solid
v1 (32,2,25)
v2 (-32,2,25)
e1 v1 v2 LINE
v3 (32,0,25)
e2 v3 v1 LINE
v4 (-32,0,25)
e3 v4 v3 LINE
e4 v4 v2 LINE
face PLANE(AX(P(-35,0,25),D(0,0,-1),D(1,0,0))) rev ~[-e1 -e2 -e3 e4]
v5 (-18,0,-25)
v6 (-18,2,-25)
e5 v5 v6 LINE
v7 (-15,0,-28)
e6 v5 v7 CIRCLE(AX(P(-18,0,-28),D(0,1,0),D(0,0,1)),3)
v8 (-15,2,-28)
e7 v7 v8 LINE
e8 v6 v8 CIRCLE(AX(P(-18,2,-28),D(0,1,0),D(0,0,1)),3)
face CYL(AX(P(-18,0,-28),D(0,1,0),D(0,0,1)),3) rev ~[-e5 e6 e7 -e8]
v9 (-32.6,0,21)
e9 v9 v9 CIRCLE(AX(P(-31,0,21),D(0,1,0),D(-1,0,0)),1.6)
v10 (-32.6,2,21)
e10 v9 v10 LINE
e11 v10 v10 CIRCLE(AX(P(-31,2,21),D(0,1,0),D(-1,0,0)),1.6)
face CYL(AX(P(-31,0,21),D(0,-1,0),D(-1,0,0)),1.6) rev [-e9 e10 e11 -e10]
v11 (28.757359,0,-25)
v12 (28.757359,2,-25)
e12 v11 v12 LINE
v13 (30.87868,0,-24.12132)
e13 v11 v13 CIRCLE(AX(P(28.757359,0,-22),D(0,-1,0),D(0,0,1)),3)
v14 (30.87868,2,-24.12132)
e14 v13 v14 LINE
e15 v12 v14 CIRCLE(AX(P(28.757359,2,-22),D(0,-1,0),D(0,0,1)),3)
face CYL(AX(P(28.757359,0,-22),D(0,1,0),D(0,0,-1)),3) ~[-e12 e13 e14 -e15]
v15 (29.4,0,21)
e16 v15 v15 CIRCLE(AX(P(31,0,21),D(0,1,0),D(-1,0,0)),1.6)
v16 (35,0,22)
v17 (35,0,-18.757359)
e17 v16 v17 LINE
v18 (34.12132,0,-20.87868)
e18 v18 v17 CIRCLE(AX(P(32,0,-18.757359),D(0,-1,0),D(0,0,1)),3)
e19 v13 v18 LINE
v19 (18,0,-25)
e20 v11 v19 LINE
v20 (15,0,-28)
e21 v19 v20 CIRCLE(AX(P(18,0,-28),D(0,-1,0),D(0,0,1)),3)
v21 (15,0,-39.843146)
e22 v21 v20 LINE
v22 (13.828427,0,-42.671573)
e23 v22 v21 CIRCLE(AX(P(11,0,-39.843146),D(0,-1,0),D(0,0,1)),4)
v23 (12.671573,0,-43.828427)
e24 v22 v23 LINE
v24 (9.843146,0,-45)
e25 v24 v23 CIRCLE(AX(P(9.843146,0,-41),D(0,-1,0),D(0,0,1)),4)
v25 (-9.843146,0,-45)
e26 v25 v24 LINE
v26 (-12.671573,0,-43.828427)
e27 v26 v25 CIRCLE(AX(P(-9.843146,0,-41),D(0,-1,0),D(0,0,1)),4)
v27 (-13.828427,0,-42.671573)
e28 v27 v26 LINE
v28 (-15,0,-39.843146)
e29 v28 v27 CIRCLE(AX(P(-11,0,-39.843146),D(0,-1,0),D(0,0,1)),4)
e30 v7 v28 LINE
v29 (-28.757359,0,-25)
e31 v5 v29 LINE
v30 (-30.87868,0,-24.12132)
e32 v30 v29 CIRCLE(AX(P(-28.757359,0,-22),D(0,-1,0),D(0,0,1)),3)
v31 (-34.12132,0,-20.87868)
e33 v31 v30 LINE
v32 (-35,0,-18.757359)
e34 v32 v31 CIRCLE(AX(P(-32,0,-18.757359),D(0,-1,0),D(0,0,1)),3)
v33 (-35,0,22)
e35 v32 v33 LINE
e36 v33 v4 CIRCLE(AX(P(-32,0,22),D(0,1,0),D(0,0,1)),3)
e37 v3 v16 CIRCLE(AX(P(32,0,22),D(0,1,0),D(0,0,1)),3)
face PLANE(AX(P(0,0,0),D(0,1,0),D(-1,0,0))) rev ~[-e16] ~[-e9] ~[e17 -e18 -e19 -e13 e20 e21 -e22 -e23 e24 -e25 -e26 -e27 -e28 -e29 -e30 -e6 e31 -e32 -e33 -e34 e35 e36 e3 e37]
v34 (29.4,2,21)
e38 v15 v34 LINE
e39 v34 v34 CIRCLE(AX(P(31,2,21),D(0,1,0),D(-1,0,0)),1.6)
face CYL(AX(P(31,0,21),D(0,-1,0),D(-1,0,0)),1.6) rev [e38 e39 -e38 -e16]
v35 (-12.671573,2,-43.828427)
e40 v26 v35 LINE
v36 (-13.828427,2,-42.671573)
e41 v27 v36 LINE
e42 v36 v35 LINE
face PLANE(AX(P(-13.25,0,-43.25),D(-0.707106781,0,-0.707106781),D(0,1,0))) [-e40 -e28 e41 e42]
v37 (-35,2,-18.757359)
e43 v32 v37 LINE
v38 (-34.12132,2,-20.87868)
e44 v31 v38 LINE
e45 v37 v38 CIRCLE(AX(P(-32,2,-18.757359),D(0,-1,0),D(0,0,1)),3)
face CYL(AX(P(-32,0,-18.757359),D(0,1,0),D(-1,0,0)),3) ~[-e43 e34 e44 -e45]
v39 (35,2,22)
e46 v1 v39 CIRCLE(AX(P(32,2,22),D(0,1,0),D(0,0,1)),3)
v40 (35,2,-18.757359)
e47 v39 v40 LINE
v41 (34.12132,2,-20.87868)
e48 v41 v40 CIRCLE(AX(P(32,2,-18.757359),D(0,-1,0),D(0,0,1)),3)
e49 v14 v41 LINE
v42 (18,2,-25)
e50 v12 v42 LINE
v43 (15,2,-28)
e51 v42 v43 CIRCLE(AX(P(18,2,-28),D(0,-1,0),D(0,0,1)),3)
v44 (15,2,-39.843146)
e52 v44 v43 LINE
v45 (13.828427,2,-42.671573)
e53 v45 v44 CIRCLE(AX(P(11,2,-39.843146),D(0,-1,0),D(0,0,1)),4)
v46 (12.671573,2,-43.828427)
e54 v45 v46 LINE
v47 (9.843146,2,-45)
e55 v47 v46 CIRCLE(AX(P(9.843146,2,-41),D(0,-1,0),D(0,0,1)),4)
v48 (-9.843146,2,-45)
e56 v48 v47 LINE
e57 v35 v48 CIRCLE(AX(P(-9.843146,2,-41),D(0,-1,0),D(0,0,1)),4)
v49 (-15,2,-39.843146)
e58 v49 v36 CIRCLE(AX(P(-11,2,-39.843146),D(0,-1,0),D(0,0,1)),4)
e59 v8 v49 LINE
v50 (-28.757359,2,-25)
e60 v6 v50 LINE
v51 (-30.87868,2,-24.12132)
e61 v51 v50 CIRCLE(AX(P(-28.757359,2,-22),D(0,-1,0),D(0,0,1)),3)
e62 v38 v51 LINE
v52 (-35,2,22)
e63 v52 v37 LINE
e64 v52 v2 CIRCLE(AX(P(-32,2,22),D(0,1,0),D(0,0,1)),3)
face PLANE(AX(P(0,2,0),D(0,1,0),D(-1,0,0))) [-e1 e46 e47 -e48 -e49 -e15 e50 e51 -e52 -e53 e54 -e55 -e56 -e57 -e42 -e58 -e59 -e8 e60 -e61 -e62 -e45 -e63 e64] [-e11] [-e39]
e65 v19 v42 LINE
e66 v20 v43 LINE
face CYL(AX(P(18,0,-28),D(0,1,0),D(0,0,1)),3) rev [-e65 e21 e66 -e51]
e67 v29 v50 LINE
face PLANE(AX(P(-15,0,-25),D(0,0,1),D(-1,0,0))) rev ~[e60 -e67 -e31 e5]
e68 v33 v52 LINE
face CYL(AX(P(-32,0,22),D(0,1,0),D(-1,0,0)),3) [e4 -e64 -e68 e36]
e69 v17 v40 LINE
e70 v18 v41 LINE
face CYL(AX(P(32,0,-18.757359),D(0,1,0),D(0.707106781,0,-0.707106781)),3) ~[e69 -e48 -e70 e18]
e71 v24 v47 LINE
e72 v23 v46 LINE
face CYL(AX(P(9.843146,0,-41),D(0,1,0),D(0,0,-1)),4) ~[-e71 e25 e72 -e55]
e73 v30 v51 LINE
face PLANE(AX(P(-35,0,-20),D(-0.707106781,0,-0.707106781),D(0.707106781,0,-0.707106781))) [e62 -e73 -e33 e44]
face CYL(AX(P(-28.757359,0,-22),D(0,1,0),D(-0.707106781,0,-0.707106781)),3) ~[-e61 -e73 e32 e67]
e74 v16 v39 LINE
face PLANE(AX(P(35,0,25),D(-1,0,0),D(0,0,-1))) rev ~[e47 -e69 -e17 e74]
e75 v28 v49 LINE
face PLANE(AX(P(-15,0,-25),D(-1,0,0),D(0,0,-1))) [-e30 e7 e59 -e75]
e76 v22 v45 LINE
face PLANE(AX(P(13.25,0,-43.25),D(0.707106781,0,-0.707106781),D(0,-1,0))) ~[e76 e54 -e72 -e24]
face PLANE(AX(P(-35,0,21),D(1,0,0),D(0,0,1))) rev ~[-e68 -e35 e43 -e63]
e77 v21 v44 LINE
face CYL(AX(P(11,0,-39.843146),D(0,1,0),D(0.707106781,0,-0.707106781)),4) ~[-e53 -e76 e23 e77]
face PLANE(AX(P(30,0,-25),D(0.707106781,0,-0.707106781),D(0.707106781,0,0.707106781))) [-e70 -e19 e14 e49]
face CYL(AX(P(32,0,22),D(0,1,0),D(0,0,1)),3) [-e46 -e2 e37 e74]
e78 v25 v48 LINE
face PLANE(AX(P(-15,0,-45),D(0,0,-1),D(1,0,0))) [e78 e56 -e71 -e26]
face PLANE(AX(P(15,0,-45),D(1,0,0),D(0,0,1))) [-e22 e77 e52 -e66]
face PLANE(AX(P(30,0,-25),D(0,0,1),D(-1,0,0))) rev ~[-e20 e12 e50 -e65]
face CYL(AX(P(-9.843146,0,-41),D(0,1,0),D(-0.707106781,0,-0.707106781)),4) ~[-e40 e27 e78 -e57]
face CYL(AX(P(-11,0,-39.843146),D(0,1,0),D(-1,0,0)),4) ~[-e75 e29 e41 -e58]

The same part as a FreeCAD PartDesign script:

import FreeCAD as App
import Part
import Sketcher
Q = App.Units.Quantity


def edges_at(feature, points):
    """Names of the edges that pass closest to the given points."""
    edges = feature.Shape.Edges
    near = lambda p: min(range(len(edges)), key=lambda i: edges[i].distToShape(Part.Vertex(*p))[0])
    return sorted({f"Edge{near(p) + 1}" for p in points})

doc = App.newDocument("Part")
body = doc.addObject("PartDesign::Body", "Body")

# Sketch on XZ plane
sketch1 = body.newObject("Sketcher::SketchObject", "Sketch")
sketch1.AttachmentSupport = (doc.getObject("XZ_Plane"), [""])
sketch1.MapMode = "FlatFace"
sketch1.addGeometry([
    Part.LineSegment(App.Vector(-35, 25, 0), App.Vector(35, 25, 0)),  # 0
    Part.LineSegment(App.Vector(35, 25, 0), App.Vector(35, -20, 0)),  # 1
    Part.LineSegment(App.Vector(35, -20, 0), App.Vector(30, -25, 0)),  # 2
    Part.LineSegment(App.Vector(30, -25, 0), App.Vector(15, -25, 0)),  # 3
    Part.LineSegment(App.Vector(15, -25, 0), App.Vector(15, -45, 0)),  # 4
    Part.LineSegment(App.Vector(15, -45, 0), App.Vector(-15, -45, 0)),  # 5
    Part.LineSegment(App.Vector(-15, -45, 0), App.Vector(-15, -25, 0)),  # 6
    Part.LineSegment(App.Vector(-15, -25, 0), App.Vector(-30, -25, 0)),  # 7
    Part.LineSegment(App.Vector(-30, -25, 0), App.Vector(-35, -20, 0)),  # 8
    Part.LineSegment(App.Vector(-35, -20, 0), App.Vector(-35, 25, 0)),  # 9
    Part.Circle(App.Vector(31, 21, 0), App.Vector(0, 0, 1), 1.6),  # 10
    Part.Circle(App.Vector(-31, 21, 0), App.Vector(0, 0, 1), 1.6),  # 11
], False)
sketch1.addConstraint([
    Sketcher.Constraint("Coincident", 0, 2, 1, 1),
    Sketcher.Constraint("Coincident", 1, 2, 2, 1),
    Sketcher.Constraint("Coincident", 2, 2, 3, 1),
    Sketcher.Constraint("Coincident", 3, 2, 4, 1),
    Sketcher.Constraint("Coincident", 4, 2, 5, 1),
    Sketcher.Constraint("Coincident", 5, 2, 6, 1),
    Sketcher.Constraint("Coincident", 6, 2, 7, 1),
    Sketcher.Constraint("Coincident", 7, 2, 8, 1),
    Sketcher.Constraint("Coincident", 8, 2, 9, 1),
    Sketcher.Constraint("Coincident", 9, 2, 0, 1),
    Sketcher.Constraint("Horizontal", 0),
    Sketcher.Constraint("Vertical", 1),
    Sketcher.Constraint("Horizontal", 3),
    Sketcher.Constraint("Vertical", 4),
    Sketcher.Constraint("Horizontal", 5),
    Sketcher.Constraint("Vertical", 6),
    Sketcher.Constraint("Horizontal", 7),
    Sketcher.Constraint("Vertical", 9),
    Sketcher.Constraint("Equal", 10, 11),
    Sketcher.Constraint("Symmetric", 10, 3, 11, 3, -2),
    Sketcher.Constraint("Symmetric", 3, 2, 6, 2, -2),
    Sketcher.Constraint("Symmetric", 1, 2, 8, 2, -2),
    Sketcher.Constraint("Perpendicular", 2, 8),
    Sketcher.Constraint("Equal", 3, 7),
    Sketcher.Constraint("Diameter", 10, Q("3.2 mm")),
    Sketcher.Constraint("DistanceX", 0, 1, 0, 2, Q("70 mm")),
    Sketcher.Constraint("DistanceX", 5, 2, 5, 1, Q("30 mm")),
    Sketcher.Constraint("DistanceX", -1, 1, 2, 2, Q("30 mm")),
    Sketcher.Constraint("DistanceX", 10, 3, 0, 2, Q("4 mm")),
    Sketcher.Constraint("DistanceY", 10, 3, 0, 2, Q("4 mm")),
    Sketcher.Constraint("DistanceY", 2, 2, 0, 2, Q("50 mm")),
    Sketcher.Constraint("DistanceY", 4, 2, 0, 2, Q("70 mm")),
    Sketcher.Constraint("DistanceY", -1, 1, 10, 3, Q("21 mm")),
])
pad1 = body.newObject("PartDesign::Pad", "Pad")
pad1.Profile = sketch1
pad1.Length = 2
pad1.Reversed = True
doc.recompute()

fillet = body.newObject("PartDesign::Fillet", "Fillet")
fillet.Base = (pad1, edges_at(pad1, [
    (-35, 1, 25),
    (35, 1, 25),
    (-15, 1, -25),
    (15, 1, -25),
    (30, 1, -25),
    (35, 1, -20),
    (-35, 1, -20),
    (-30, 1, -25),
]))
fillet.Radius = 3
doc.recompute()

chamfer = body.newObject("PartDesign::Chamfer", "Chamfer")
chamfer.Base = (fillet, edges_at(fillet, [(-15, 1, -45), (15, 1, -45)]))
chamfer.Size = 3.5
doc.recompute()

fillet2 = body.newObject("PartDesign::Fillet", "Fillet001")
fillet2.Base = (chamfer, edges_at(chamfer, [
    (15, 1, -41.5),
    (11.5, 1, -45),
    (-11.5, 1, -45),
    (-15, 1, -41.5),
]))
fillet2.Radius = 4

doc.recompute()
